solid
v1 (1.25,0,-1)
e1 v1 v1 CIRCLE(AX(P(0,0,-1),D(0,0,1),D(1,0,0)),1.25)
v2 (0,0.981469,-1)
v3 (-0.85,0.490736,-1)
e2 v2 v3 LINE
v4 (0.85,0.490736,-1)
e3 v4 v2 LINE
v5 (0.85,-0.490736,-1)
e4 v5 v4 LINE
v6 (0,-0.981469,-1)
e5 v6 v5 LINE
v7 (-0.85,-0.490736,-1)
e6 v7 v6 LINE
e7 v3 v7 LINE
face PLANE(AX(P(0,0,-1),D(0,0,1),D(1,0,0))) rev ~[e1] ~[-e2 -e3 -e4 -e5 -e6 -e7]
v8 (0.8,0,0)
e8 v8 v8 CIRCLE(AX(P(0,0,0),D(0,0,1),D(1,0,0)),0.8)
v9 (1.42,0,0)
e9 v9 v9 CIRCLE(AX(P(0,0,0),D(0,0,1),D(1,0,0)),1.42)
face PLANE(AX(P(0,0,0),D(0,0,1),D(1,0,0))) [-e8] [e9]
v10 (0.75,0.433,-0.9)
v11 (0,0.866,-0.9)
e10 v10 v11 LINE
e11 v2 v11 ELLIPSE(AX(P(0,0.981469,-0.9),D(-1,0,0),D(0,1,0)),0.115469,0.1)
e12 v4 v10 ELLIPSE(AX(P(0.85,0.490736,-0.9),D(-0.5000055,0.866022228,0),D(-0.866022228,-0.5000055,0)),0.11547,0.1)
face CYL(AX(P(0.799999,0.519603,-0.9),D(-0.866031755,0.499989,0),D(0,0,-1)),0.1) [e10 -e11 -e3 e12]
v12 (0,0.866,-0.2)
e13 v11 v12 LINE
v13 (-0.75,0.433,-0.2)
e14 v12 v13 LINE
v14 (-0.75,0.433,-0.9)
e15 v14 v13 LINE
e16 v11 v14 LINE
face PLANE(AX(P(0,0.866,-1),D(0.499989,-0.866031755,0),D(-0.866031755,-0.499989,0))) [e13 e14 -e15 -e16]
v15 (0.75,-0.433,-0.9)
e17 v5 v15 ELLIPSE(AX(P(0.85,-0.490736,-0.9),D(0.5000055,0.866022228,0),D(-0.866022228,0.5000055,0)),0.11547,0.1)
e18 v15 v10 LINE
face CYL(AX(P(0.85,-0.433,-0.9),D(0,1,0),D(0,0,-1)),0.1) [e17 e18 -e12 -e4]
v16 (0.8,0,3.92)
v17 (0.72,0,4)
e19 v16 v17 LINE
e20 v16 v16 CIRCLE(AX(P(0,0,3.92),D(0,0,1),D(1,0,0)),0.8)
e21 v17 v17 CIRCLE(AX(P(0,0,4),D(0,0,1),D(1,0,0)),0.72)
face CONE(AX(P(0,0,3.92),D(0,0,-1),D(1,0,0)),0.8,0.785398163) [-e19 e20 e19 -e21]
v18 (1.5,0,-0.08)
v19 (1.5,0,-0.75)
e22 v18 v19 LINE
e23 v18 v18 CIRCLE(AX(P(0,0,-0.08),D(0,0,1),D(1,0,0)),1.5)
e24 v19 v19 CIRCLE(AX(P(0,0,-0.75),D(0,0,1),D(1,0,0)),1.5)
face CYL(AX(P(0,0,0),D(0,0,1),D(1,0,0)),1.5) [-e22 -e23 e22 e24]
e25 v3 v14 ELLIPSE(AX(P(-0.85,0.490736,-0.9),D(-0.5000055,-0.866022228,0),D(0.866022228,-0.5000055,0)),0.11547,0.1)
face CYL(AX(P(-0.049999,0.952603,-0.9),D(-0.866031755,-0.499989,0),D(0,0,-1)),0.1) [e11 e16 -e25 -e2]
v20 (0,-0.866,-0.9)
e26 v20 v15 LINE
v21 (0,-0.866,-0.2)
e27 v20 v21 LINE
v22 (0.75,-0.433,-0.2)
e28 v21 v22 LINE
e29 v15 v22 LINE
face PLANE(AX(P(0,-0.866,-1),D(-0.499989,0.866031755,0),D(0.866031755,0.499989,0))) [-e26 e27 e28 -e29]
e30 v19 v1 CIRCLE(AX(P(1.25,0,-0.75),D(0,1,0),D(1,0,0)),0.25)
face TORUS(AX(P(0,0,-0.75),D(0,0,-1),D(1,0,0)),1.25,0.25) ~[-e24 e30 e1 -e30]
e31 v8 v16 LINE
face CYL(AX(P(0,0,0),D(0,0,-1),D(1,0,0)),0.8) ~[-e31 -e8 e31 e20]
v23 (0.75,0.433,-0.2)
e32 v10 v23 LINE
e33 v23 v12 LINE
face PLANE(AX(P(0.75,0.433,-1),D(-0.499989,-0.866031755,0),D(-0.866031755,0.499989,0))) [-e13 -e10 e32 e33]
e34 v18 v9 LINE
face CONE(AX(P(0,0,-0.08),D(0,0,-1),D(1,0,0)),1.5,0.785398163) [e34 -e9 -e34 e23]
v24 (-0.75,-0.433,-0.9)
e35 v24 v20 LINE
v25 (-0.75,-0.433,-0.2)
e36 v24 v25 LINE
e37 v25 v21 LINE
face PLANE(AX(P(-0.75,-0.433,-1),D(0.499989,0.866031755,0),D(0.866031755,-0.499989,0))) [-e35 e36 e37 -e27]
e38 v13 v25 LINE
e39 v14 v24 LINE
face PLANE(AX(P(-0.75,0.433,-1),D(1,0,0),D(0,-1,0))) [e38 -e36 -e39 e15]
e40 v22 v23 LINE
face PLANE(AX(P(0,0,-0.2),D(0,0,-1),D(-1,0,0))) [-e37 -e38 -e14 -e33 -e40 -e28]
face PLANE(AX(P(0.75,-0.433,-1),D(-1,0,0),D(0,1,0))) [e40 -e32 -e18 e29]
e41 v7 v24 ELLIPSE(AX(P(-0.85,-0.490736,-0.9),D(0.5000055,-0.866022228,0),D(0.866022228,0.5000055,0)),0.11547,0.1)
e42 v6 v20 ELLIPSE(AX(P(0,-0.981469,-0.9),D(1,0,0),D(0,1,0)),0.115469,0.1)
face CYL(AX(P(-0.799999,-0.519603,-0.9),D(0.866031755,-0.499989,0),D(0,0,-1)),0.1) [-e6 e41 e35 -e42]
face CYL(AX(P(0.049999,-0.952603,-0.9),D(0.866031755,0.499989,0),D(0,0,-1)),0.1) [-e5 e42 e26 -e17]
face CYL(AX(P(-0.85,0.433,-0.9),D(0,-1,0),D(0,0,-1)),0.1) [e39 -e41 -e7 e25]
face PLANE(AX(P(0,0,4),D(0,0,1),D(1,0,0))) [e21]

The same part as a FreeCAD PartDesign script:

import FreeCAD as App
import Part
import Sketcher

V = App.Vector
Q = App.Units.Quantity


def edges_at(feature, points):
    """Names of the edges that pass closest to the given points."""
    edges = feature.Shape.Edges
    near = lambda p: min(range(len(edges)), key=lambda i: edges[i].distToShape(Part.Vertex(*p))[0])
    return sorted({f"Edge{near(p) + 1}" for p in points})


def add_polygon(sketch, points):
    """Adds a closed chain of lines whose ends are joined by coincident constraints."""
    first, n = sketch.GeometryCount, len(points)
    for a, b in zip(points, points[1:] + points[:1]):
        sketch.addGeometry(Part.LineSegment(App.Vector(*a, 0), App.Vector(*b, 0)), False)
    for i in range(n):
        sketch.addConstraint(Sketcher.Constraint("Coincident", first + i, 2, first + (i + 1) % n, 1))

doc = App.newDocument("Part")
body = doc.addObject("PartDesign::Body", "Body")

# Sketch on XY plane
sketch1 = doc.addObject("Sketcher::SketchObject", "Sketch")
body.addObject(sketch1)
sketch1.AttachmentSupport = (doc.XY_Plane, [""])
sketch1.MapMode = "FlatFace"
sketch1.addGeometry(Part.Circle(V(0, 0, 0), V(0, 0, 1), 0.8), False)
sketch1.addConstraint([
    Sketcher.Constraint("Coincident", 0, 3, -1, 1),
    Sketcher.Constraint("Diameter", 0, Q("1.6 mm")),
])
pad1 = doc.addObject("PartDesign::Pad", "Pad")
body.addObject(pad1)
pad1.Profile = sketch1
pad1.Length = 4

# Sketch on XY plane
sketch2 = doc.addObject("Sketcher::SketchObject", "Sketch001")
body.addObject(sketch2)
sketch2.AttachmentSupport = (doc.XY_Plane, [""])
sketch2.MapMode = "FlatFace"
sketch2.addGeometry(Part.Circle(V(0, 0, 0), V(0, 0, 1), 1.5), False)
sketch2.addConstraint([
    Sketcher.Constraint("Coincident", 0, 3, -1, 1),
    Sketcher.Constraint("Diameter", 0, Q("3 mm")),
])
pad2 = doc.addObject("PartDesign::Pad", "Pad001")
body.addObject(pad2)
pad2.Profile = sketch2
pad2.Length = 1
pad2.Reversed = True

# Sketch on XY plane
sketch3 = doc.addObject("Sketcher::SketchObject", "Sketch002")
body.addObject(sketch3)
sketch3.AttachmentSupport = (doc.XY_Plane, [""])
sketch3.MapMode = "FlatFace"
sketch3.AttachmentOffset = App.Placement(V(0, 0, -1), App.Rotation())
add_polygon(sketch3, [(0, 0.9), (0.8, 0.4), (0.8, -0.4), (0, -0.9), (-0.8, -0.4), (-0.8, 0.4)])  # lines 0-5
sketch3.addConstraint([
    Sketcher.Constraint("Vertical", 1),
    Sketcher.Constraint("Vertical", 4),
    Sketcher.Constraint("Symmetric", 0, 2, 3, 2, -1, 1),
    Sketcher.Constraint("Symmetric", 2, 2, 5, 2, -1, 1),
    Sketcher.Constraint("PointOnObject", 2, 2, -2),
    Sketcher.Constraint("Parallel", 2, 5),
    Sketcher.Constraint("Horizontal", 1, 2, 3, 2),
    Sketcher.Constraint("DistanceX", 3, 2, 1, 2, Q("1.5 mm")),
    Sketcher.Constraint("Angle", 0, Q("-29.9993 deg")),
    Sketcher.Constraint("DistanceY", 1, 2, 1, 1, Q("0.866 mm")),
])
pocket1 = doc.addObject("PartDesign::Pocket", "Pocket")
body.addObject(pocket1)
pocket1.Profile = sketch3
pocket1.Length = 0.8
pocket1.Reversed = True
doc.recompute()

fillet = doc.addObject("PartDesign::Fillet", "Fillet")
body.addObject(fillet)
fillet.Base = (pocket1, edges_at(pocket1, [(-1.5, 0, -1)]))
fillet.Radius = 0.25
doc.recompute()

fillet2 = doc.addObject("PartDesign::Fillet", "Fillet001")
body.addObject(fillet2)
fillet2.Base = (fillet, edges_at(fillet, [
    (0.375, 0.649, -1),
    (0.75, 0, -1),
    (0.375, -0.649, -1),
    (-0.375, -0.649, -1),
    (-0.75, 0, -1),
    (-0.375, 0.649, -1),
]))
fillet2.Radius = 0.1
doc.recompute()

chamfer = doc.addObject("PartDesign::Chamfer", "Chamfer")
body.addObject(chamfer)
chamfer.Base = (fillet2, edges_at(fillet2, [(-0.8, 0, 4), (-1.5, 0, 0)]))
chamfer.Size = 0.08

doc.recompute()
